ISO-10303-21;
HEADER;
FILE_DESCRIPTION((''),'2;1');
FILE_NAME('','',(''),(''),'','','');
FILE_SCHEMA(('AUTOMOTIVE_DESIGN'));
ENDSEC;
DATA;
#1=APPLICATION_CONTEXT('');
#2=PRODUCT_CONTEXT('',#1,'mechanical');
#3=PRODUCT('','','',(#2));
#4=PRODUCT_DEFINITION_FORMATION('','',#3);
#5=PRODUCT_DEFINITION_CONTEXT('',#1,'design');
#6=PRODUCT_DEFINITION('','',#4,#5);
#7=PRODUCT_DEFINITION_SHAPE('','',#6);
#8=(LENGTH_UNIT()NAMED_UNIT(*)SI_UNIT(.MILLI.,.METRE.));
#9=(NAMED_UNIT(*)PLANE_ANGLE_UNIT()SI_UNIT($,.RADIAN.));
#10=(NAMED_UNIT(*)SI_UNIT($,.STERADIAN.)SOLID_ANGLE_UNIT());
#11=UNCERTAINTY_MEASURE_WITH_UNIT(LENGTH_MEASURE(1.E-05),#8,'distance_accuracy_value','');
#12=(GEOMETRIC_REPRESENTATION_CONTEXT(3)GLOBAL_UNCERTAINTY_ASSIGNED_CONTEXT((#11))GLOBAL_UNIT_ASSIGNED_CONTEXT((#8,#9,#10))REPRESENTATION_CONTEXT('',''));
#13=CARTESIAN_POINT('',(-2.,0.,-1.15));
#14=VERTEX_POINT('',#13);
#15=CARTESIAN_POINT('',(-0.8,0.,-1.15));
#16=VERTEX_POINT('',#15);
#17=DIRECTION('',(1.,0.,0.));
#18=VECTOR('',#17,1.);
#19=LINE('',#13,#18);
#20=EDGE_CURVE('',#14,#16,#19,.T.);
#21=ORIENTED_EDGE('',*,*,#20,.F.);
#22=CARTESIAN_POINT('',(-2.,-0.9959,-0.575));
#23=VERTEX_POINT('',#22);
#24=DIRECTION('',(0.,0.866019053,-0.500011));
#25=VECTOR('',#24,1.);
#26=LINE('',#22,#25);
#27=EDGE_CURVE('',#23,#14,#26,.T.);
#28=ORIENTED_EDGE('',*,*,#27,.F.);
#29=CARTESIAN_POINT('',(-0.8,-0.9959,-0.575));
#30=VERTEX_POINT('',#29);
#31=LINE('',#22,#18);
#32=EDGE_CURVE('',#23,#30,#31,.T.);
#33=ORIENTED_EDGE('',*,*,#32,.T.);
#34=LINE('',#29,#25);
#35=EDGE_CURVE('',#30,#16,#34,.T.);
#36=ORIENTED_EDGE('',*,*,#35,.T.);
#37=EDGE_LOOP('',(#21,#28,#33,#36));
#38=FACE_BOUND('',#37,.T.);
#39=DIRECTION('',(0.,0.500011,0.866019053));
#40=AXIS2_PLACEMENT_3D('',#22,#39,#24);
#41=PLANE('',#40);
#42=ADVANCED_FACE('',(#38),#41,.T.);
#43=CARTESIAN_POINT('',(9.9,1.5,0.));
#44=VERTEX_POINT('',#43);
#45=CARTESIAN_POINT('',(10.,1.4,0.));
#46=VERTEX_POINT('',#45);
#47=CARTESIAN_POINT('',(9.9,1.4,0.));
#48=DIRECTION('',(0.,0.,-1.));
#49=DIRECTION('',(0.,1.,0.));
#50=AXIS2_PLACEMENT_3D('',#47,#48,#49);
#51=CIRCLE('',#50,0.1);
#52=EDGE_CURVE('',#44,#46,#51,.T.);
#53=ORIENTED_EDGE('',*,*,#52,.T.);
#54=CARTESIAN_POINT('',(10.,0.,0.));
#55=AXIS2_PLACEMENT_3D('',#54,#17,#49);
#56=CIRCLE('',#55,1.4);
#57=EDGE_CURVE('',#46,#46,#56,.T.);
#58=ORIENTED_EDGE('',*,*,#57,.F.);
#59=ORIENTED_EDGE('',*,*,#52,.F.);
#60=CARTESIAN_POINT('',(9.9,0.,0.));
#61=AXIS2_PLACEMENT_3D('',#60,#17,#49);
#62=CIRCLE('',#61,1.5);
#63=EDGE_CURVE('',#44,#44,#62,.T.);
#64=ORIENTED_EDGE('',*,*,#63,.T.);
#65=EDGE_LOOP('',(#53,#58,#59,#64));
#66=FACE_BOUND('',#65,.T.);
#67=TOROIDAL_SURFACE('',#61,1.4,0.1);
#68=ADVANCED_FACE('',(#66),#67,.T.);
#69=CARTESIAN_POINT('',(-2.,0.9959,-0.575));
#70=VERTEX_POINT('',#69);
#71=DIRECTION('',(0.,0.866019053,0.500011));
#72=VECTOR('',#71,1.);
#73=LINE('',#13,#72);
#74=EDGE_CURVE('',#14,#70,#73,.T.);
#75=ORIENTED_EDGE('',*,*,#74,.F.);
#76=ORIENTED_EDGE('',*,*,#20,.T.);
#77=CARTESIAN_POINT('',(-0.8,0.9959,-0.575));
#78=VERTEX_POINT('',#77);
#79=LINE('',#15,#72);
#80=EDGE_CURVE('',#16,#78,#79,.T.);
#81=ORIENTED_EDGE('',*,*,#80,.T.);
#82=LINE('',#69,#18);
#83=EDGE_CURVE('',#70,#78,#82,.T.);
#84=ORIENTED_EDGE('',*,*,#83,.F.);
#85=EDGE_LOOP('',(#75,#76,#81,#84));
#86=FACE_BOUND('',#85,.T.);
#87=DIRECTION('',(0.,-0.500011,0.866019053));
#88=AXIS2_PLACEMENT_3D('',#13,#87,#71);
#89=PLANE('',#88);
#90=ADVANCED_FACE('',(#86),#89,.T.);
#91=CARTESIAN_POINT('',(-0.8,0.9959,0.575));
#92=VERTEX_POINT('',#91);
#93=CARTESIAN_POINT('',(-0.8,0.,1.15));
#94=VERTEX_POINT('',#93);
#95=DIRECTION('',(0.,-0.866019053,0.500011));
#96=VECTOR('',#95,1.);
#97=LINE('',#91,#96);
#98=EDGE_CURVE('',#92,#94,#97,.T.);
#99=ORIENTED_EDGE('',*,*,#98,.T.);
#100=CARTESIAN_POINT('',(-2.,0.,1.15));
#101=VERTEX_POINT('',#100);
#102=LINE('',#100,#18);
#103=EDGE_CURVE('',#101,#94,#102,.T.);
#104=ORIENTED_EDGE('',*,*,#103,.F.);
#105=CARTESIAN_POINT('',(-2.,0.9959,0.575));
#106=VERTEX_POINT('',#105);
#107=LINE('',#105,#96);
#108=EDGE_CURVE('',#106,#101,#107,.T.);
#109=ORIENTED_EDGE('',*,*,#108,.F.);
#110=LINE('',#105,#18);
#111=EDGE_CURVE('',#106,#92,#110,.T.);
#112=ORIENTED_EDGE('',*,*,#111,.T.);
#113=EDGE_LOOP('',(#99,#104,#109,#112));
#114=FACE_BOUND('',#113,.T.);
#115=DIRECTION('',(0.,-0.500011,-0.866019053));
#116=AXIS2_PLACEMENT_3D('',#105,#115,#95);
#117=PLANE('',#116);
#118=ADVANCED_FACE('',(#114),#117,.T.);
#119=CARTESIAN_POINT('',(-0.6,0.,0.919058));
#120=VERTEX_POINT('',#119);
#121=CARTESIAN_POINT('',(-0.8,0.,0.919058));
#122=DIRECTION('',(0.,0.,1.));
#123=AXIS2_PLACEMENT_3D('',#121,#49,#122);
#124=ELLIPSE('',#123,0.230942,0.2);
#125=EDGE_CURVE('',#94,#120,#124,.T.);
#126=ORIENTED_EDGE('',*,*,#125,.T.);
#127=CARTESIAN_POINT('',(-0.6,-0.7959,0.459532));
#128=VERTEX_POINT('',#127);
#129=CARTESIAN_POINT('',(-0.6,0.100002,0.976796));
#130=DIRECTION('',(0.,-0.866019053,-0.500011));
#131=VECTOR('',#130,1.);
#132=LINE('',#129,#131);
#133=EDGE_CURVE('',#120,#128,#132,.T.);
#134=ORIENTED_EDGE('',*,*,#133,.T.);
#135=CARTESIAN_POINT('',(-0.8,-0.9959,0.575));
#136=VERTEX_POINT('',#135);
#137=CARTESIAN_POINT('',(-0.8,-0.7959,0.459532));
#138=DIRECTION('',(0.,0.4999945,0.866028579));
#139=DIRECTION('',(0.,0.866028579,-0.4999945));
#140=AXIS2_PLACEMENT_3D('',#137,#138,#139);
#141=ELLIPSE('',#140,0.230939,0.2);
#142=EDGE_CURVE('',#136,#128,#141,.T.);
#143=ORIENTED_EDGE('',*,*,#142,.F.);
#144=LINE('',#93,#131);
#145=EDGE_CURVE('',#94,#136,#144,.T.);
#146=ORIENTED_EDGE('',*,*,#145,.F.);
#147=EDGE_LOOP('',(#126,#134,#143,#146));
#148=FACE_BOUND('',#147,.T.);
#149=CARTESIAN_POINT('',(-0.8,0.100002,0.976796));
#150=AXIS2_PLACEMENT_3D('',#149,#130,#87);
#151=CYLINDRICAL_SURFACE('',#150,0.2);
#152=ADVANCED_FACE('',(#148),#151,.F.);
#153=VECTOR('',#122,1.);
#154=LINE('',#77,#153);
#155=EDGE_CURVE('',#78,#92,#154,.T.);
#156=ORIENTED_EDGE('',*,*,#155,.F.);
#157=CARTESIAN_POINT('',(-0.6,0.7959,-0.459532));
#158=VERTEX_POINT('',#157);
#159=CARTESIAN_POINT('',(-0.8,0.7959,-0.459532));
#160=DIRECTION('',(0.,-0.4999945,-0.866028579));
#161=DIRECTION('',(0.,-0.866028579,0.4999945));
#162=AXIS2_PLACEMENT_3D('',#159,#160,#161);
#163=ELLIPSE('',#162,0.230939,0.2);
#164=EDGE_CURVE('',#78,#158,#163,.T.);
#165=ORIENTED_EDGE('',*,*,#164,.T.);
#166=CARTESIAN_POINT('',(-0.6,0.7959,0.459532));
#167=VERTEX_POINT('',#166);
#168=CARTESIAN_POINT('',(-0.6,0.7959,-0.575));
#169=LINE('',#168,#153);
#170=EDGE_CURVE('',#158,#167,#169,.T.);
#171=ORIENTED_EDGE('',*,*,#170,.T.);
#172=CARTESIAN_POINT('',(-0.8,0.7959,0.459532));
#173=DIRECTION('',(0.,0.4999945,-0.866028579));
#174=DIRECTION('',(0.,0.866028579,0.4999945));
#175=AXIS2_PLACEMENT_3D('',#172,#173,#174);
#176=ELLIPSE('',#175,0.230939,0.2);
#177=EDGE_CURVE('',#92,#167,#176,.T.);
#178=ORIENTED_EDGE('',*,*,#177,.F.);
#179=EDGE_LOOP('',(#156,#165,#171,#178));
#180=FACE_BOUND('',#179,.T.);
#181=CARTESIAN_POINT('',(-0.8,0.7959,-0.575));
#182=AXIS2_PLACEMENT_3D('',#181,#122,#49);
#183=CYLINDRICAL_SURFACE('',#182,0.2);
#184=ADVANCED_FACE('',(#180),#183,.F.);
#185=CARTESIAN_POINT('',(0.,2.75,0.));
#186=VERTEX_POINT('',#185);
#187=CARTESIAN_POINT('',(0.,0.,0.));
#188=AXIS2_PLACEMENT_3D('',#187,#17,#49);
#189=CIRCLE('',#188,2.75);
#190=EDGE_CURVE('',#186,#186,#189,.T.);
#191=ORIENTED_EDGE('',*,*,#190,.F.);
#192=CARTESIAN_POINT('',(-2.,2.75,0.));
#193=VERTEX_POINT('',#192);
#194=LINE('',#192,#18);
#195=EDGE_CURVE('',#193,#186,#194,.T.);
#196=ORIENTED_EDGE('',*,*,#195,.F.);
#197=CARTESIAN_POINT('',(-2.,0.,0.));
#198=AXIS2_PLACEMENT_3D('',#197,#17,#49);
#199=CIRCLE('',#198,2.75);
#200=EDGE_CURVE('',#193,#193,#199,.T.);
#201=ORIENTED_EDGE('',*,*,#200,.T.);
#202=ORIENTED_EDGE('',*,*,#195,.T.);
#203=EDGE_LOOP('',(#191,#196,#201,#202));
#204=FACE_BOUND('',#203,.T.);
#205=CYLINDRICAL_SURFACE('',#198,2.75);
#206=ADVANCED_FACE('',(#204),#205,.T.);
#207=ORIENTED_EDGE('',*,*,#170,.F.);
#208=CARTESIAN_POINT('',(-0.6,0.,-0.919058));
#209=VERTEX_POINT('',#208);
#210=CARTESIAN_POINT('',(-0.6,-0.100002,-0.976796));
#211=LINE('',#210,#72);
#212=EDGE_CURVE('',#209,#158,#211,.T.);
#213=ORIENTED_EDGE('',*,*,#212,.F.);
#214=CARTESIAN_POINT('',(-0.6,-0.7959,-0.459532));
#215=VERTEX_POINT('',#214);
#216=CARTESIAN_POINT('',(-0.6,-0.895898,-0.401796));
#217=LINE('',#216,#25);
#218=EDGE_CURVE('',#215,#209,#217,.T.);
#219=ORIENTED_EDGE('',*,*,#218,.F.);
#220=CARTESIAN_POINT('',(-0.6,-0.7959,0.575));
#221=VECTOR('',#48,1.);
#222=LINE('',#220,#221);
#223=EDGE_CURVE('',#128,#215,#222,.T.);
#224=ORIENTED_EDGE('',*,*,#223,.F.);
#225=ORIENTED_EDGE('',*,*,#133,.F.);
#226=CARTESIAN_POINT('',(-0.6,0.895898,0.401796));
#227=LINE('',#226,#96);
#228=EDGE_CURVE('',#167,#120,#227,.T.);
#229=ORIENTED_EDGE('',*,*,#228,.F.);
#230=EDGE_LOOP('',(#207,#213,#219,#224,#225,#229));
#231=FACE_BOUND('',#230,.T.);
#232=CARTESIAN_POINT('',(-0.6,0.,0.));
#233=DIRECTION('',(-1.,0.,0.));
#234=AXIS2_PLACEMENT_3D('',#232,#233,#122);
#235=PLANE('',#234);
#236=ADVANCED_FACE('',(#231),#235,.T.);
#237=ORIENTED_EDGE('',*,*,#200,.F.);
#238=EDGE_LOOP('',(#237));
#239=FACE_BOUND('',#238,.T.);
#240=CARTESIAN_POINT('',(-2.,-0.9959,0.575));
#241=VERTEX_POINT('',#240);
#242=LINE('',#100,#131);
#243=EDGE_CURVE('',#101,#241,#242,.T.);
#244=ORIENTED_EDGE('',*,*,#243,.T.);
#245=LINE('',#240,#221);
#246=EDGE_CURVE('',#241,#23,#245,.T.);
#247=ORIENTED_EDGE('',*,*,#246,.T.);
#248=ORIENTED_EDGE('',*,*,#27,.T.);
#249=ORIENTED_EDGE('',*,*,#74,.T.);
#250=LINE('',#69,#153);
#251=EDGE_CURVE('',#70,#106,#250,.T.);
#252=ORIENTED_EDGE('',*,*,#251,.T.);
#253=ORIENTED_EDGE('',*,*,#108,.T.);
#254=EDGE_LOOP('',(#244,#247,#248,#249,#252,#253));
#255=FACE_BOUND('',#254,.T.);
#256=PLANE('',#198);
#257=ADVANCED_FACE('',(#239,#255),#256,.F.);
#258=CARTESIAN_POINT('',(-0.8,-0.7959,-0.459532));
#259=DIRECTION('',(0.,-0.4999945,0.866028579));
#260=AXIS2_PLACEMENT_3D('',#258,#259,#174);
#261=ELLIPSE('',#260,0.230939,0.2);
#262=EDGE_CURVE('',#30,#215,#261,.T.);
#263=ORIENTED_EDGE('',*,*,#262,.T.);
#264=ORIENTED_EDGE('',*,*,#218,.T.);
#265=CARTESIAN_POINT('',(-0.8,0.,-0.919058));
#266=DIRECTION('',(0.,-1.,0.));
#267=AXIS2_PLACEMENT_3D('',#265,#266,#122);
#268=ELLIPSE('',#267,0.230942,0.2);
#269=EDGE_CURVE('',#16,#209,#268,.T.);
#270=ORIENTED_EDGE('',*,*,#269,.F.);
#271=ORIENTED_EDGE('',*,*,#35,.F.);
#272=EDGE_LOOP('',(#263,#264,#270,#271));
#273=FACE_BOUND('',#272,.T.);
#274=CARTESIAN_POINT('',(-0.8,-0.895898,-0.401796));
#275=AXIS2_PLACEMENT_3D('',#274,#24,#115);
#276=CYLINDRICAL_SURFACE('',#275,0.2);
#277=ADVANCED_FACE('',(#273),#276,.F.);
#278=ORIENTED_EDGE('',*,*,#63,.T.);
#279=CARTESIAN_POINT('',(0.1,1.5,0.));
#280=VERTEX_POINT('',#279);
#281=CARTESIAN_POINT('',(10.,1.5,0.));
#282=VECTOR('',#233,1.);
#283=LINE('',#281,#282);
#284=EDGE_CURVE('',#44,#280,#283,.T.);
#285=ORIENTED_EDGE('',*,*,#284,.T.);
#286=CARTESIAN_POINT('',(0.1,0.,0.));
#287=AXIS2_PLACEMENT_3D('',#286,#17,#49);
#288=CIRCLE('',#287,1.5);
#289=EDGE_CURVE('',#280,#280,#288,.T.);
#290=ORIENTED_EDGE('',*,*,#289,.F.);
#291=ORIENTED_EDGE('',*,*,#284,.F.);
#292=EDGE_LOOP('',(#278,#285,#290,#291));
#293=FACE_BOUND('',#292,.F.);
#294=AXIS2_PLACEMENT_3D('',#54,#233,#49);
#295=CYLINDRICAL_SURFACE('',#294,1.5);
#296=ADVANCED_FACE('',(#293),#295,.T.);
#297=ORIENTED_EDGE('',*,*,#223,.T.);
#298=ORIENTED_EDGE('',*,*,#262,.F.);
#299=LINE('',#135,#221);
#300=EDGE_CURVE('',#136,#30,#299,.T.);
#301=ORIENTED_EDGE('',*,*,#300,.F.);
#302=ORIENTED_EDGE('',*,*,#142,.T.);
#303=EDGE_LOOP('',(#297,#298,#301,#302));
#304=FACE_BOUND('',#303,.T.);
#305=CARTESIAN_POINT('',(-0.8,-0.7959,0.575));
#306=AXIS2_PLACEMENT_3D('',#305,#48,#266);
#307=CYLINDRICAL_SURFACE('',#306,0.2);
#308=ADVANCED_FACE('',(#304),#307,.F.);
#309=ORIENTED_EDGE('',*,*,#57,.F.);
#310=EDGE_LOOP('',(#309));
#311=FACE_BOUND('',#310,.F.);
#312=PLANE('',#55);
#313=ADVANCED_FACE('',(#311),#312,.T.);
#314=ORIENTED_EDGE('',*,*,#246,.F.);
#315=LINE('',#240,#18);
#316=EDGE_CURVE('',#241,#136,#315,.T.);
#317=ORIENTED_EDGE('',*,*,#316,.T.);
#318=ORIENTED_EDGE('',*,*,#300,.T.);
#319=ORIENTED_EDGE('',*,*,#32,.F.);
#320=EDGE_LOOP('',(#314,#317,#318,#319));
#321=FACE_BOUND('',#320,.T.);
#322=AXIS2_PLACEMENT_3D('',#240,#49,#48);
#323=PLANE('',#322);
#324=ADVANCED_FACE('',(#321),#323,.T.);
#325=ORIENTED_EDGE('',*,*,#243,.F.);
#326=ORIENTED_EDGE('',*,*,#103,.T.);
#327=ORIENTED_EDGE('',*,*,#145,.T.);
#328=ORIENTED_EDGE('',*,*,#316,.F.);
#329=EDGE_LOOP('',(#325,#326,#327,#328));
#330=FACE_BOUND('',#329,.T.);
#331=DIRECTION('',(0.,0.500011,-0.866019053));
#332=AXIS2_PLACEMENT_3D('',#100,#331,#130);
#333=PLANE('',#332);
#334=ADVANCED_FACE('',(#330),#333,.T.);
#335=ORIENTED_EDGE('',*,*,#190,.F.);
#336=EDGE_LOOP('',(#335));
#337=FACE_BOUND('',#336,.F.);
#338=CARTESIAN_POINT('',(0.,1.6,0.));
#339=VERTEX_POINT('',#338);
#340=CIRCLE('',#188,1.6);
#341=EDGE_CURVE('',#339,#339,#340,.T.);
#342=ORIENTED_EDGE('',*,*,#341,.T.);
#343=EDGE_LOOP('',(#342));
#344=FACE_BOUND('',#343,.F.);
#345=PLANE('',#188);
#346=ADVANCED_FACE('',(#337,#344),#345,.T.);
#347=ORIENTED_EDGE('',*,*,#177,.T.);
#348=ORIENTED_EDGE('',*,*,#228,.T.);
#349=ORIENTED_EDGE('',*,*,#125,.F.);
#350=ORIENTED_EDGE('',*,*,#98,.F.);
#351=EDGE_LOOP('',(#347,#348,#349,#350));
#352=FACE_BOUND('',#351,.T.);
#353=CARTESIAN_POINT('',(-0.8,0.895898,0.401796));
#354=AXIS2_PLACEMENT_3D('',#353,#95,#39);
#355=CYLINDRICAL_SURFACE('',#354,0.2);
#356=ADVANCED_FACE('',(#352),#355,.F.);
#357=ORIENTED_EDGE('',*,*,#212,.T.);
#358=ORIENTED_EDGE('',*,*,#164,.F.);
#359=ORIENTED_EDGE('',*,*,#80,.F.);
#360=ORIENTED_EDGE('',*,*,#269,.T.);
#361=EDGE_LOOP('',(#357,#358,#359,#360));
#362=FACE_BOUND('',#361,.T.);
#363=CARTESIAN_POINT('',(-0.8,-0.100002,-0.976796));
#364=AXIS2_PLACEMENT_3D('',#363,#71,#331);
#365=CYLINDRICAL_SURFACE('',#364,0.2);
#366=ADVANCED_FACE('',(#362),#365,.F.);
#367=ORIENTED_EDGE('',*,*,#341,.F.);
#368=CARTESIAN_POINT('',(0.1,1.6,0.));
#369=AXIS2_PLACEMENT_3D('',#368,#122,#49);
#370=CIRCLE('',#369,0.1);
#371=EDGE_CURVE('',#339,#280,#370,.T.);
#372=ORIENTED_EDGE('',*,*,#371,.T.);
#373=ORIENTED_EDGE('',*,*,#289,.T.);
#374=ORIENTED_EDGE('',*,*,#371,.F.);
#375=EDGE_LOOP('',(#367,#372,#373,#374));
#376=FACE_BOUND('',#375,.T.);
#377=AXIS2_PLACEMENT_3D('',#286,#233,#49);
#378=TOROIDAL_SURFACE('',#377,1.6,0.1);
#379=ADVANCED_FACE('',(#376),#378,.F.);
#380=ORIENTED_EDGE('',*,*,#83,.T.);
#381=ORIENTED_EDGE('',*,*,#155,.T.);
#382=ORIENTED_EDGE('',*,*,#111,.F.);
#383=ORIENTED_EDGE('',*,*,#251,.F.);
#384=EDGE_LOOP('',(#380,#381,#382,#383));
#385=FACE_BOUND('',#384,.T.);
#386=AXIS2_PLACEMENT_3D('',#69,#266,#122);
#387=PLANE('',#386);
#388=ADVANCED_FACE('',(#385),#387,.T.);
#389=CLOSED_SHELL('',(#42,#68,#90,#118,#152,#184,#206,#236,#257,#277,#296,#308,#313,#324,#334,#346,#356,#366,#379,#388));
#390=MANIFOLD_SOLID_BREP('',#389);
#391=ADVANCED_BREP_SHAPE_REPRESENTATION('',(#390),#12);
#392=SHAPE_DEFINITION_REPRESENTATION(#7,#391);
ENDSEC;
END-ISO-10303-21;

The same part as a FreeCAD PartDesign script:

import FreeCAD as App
import Part
import Sketcher

V = App.Vector
Q = App.Units.Quantity


def edges_at(feature, points):
    """Names of the edges that pass closest to the given points."""
    edges = feature.Shape.Edges
    near = lambda p: min(range(len(edges)), key=lambda i: edges[i].distToShape(Part.Vertex(*p))[0])
    return sorted({f"Edge{near(p) + 1}" for p in points})


def add_polygon(sketch, points):
    """Adds a closed chain of lines whose ends are joined by coincident constraints."""
    first, n = sketch.GeometryCount, len(points)
    for a, b in zip(points, points[1:] + points[:1]):
        sketch.addGeometry(Part.LineSegment(App.Vector(*a, 0), App.Vector(*b, 0)), False)
    for i in range(n):
        sketch.addConstraint(Sketcher.Constraint("Coincident", first + i, 2, first + (i + 1) % n, 1))

doc = App.newDocument("Part")
params = doc.addObject("Spreadsheet::Sheet", "Params")
for row, (alias, value) in enumerate([
    ("sketch1_width", "10 mm"),
    ("sketch1_width2", "2 mm"),
    ("sketch1_height", "1.5 mm"),
    ("sketch1_height2", "2.75 mm"),
    ("revolution_angle", "360 deg"),
    ("sketch2_height", "1.15 mm"),
    ("sketch2_length", "1.15 mm"),
    ("pocket1_length", "1.4 mm"),
    ("fillet_radius", "0.2 mm"),
    ("fillet2_radius", "0.1 mm"),
    ("fillet3_radius", "0.1 mm"),
], start=1):
    params.set(f"A{row}", alias)
    params.set(f"B{row}", "=" + value)
    params.setAlias(f"B{row}", alias)

body = doc.addObject("PartDesign::Body", "Body")

# Sketch on XY plane
sketch1 = body.newObject("Sketcher::SketchObject", "Sketch")
sketch1.AttachmentSupport = (doc.getObject("XY_Plane"), [""])
sketch1.MapMode = "FlatFace"
add_polygon(sketch1, [(10, 1.5), (0, 1.5), (0, 2.75), (-2, 2.75), (-2, 0), (10, 0)])  # lines 0-5
sketch1.addConstraint([
    Sketcher.Constraint("Horizontal", 0),
    Sketcher.Constraint("Vertical", 1),
    Sketcher.Constraint("Horizontal", 2),
    Sketcher.Constraint("Vertical", 3),
    Sketcher.Constraint("Horizontal", 4),
    Sketcher.Constraint("Vertical", 5),
    Sketcher.Constraint("PointOnObject", 0, 2, -2),
    Sketcher.Constraint("PointOnObject", 3, 2, -1),
    Sketcher.Constraint("DistanceX", 0, 2, 0, 1, Q("10 mm")),
    Sketcher.Constraint("DistanceX", 2, 2, 2, 1, Q("2 mm")),
    Sketcher.Constraint("DistanceY", 5, 1, 5, 2, Q("1.5 mm")),
    Sketcher.Constraint("DistanceY", 3, 2, 3, 1, Q("2.75 mm")),
])
sketch1.setExpression("Constraints[14]", "Params.sketch1_width")
sketch1.setExpression("Constraints[15]", "Params.sketch1_width2")
sketch1.setExpression("Constraints[16]", "Params.sketch1_height")
sketch1.setExpression("Constraints[17]", "Params.sketch1_height2")
revolution = body.newObject("PartDesign::Revolution", "Revolution")
revolution.Profile = sketch1
revolution.ReferenceAxis = (sketch1, ["H_Axis"])
revolution.setExpression("Angle", "Params.revolution_angle")

# Sketch on YZ plane
sketch2 = body.newObject("Sketcher::SketchObject", "Sketch001")
sketch2.AttachmentSupport = (doc.getObject("YZ_Plane"), [""])
sketch2.MapMode = "FlatFace"
sketch2.AttachmentOffset = App.Placement(V(0, 0, -2), App.Rotation())
add_polygon(sketch2, [(-0.9959, 0.575), (0, 1.15), (0.9959, 0.575), (0.9959, -0.575), (0, -1.15), (-0.9959, -0.575)])  # lines 0-5
sketch2.addConstraint([
    Sketcher.Constraint("Vertical", 2),
    Sketcher.Constraint("Vertical", 5),
    Sketcher.Constraint("Symmetric", 0, 2, 3, 2, -1, 1),
    Sketcher.Constraint("Symmetric", 1, 2, 4, 2, -1, 1),
    Sketcher.Constraint("PointOnObject", 0, 2, -2),
    Sketcher.Constraint("Parallel", 0, 3),
    Sketcher.Constraint("Horizontal", 2, 2, 4, 2),
    Sketcher.Constraint("DistanceY", 2, 2, 2, 1, Q("1.15 mm")),
    Sketcher.Constraint("Distance", 0, Q("1.15 mm")),
    Sketcher.Constraint("DistanceY", -1, 1, 0, 2, Q("1.15 mm")),
])
sketch2.setExpression("Constraints[13]", "Params.sketch2_height")
sketch2.setExpression("Constraints[14]", "Params.sketch2_length")
pocket1 = body.newObject("PartDesign::Pocket", "Pocket")
pocket1.Profile = sketch2
pocket1.setExpression("Length", "Params.pocket1_length")
pocket1.Reversed = True
doc.recompute()

fillet = body.newObject("PartDesign::Fillet", "Fillet")
fillet.Base = (pocket1, edges_at(pocket1, [
    (-0.6, 0.996, 0),
    (-0.6, 0.498, 0.863),
    (-0.6, 0.498, -0.863),
    (-0.6, -0.498, -0.863),
    (-0.6, -0.996, 0),
    (-0.6, -0.498, 0.863),
]))
fillet.setExpression("Radius", "Params.fillet_radius")
doc.recompute()

fillet2 = body.newObject("PartDesign::Fillet", "Fillet001")
fillet2.Base = (fillet, edges_at(fillet, [(0, -1.5, 0)]))
fillet2.setExpression("Radius", "Params.fillet2_radius")
doc.recompute()

fillet3 = body.newObject("PartDesign::Fillet", "Fillet002")
fillet3.Base = (fillet2, edges_at(fillet2, [(10, -1.5, 0)]))
fillet3.setExpression("Radius", "Params.fillet3_radius")

doc.recompute()
